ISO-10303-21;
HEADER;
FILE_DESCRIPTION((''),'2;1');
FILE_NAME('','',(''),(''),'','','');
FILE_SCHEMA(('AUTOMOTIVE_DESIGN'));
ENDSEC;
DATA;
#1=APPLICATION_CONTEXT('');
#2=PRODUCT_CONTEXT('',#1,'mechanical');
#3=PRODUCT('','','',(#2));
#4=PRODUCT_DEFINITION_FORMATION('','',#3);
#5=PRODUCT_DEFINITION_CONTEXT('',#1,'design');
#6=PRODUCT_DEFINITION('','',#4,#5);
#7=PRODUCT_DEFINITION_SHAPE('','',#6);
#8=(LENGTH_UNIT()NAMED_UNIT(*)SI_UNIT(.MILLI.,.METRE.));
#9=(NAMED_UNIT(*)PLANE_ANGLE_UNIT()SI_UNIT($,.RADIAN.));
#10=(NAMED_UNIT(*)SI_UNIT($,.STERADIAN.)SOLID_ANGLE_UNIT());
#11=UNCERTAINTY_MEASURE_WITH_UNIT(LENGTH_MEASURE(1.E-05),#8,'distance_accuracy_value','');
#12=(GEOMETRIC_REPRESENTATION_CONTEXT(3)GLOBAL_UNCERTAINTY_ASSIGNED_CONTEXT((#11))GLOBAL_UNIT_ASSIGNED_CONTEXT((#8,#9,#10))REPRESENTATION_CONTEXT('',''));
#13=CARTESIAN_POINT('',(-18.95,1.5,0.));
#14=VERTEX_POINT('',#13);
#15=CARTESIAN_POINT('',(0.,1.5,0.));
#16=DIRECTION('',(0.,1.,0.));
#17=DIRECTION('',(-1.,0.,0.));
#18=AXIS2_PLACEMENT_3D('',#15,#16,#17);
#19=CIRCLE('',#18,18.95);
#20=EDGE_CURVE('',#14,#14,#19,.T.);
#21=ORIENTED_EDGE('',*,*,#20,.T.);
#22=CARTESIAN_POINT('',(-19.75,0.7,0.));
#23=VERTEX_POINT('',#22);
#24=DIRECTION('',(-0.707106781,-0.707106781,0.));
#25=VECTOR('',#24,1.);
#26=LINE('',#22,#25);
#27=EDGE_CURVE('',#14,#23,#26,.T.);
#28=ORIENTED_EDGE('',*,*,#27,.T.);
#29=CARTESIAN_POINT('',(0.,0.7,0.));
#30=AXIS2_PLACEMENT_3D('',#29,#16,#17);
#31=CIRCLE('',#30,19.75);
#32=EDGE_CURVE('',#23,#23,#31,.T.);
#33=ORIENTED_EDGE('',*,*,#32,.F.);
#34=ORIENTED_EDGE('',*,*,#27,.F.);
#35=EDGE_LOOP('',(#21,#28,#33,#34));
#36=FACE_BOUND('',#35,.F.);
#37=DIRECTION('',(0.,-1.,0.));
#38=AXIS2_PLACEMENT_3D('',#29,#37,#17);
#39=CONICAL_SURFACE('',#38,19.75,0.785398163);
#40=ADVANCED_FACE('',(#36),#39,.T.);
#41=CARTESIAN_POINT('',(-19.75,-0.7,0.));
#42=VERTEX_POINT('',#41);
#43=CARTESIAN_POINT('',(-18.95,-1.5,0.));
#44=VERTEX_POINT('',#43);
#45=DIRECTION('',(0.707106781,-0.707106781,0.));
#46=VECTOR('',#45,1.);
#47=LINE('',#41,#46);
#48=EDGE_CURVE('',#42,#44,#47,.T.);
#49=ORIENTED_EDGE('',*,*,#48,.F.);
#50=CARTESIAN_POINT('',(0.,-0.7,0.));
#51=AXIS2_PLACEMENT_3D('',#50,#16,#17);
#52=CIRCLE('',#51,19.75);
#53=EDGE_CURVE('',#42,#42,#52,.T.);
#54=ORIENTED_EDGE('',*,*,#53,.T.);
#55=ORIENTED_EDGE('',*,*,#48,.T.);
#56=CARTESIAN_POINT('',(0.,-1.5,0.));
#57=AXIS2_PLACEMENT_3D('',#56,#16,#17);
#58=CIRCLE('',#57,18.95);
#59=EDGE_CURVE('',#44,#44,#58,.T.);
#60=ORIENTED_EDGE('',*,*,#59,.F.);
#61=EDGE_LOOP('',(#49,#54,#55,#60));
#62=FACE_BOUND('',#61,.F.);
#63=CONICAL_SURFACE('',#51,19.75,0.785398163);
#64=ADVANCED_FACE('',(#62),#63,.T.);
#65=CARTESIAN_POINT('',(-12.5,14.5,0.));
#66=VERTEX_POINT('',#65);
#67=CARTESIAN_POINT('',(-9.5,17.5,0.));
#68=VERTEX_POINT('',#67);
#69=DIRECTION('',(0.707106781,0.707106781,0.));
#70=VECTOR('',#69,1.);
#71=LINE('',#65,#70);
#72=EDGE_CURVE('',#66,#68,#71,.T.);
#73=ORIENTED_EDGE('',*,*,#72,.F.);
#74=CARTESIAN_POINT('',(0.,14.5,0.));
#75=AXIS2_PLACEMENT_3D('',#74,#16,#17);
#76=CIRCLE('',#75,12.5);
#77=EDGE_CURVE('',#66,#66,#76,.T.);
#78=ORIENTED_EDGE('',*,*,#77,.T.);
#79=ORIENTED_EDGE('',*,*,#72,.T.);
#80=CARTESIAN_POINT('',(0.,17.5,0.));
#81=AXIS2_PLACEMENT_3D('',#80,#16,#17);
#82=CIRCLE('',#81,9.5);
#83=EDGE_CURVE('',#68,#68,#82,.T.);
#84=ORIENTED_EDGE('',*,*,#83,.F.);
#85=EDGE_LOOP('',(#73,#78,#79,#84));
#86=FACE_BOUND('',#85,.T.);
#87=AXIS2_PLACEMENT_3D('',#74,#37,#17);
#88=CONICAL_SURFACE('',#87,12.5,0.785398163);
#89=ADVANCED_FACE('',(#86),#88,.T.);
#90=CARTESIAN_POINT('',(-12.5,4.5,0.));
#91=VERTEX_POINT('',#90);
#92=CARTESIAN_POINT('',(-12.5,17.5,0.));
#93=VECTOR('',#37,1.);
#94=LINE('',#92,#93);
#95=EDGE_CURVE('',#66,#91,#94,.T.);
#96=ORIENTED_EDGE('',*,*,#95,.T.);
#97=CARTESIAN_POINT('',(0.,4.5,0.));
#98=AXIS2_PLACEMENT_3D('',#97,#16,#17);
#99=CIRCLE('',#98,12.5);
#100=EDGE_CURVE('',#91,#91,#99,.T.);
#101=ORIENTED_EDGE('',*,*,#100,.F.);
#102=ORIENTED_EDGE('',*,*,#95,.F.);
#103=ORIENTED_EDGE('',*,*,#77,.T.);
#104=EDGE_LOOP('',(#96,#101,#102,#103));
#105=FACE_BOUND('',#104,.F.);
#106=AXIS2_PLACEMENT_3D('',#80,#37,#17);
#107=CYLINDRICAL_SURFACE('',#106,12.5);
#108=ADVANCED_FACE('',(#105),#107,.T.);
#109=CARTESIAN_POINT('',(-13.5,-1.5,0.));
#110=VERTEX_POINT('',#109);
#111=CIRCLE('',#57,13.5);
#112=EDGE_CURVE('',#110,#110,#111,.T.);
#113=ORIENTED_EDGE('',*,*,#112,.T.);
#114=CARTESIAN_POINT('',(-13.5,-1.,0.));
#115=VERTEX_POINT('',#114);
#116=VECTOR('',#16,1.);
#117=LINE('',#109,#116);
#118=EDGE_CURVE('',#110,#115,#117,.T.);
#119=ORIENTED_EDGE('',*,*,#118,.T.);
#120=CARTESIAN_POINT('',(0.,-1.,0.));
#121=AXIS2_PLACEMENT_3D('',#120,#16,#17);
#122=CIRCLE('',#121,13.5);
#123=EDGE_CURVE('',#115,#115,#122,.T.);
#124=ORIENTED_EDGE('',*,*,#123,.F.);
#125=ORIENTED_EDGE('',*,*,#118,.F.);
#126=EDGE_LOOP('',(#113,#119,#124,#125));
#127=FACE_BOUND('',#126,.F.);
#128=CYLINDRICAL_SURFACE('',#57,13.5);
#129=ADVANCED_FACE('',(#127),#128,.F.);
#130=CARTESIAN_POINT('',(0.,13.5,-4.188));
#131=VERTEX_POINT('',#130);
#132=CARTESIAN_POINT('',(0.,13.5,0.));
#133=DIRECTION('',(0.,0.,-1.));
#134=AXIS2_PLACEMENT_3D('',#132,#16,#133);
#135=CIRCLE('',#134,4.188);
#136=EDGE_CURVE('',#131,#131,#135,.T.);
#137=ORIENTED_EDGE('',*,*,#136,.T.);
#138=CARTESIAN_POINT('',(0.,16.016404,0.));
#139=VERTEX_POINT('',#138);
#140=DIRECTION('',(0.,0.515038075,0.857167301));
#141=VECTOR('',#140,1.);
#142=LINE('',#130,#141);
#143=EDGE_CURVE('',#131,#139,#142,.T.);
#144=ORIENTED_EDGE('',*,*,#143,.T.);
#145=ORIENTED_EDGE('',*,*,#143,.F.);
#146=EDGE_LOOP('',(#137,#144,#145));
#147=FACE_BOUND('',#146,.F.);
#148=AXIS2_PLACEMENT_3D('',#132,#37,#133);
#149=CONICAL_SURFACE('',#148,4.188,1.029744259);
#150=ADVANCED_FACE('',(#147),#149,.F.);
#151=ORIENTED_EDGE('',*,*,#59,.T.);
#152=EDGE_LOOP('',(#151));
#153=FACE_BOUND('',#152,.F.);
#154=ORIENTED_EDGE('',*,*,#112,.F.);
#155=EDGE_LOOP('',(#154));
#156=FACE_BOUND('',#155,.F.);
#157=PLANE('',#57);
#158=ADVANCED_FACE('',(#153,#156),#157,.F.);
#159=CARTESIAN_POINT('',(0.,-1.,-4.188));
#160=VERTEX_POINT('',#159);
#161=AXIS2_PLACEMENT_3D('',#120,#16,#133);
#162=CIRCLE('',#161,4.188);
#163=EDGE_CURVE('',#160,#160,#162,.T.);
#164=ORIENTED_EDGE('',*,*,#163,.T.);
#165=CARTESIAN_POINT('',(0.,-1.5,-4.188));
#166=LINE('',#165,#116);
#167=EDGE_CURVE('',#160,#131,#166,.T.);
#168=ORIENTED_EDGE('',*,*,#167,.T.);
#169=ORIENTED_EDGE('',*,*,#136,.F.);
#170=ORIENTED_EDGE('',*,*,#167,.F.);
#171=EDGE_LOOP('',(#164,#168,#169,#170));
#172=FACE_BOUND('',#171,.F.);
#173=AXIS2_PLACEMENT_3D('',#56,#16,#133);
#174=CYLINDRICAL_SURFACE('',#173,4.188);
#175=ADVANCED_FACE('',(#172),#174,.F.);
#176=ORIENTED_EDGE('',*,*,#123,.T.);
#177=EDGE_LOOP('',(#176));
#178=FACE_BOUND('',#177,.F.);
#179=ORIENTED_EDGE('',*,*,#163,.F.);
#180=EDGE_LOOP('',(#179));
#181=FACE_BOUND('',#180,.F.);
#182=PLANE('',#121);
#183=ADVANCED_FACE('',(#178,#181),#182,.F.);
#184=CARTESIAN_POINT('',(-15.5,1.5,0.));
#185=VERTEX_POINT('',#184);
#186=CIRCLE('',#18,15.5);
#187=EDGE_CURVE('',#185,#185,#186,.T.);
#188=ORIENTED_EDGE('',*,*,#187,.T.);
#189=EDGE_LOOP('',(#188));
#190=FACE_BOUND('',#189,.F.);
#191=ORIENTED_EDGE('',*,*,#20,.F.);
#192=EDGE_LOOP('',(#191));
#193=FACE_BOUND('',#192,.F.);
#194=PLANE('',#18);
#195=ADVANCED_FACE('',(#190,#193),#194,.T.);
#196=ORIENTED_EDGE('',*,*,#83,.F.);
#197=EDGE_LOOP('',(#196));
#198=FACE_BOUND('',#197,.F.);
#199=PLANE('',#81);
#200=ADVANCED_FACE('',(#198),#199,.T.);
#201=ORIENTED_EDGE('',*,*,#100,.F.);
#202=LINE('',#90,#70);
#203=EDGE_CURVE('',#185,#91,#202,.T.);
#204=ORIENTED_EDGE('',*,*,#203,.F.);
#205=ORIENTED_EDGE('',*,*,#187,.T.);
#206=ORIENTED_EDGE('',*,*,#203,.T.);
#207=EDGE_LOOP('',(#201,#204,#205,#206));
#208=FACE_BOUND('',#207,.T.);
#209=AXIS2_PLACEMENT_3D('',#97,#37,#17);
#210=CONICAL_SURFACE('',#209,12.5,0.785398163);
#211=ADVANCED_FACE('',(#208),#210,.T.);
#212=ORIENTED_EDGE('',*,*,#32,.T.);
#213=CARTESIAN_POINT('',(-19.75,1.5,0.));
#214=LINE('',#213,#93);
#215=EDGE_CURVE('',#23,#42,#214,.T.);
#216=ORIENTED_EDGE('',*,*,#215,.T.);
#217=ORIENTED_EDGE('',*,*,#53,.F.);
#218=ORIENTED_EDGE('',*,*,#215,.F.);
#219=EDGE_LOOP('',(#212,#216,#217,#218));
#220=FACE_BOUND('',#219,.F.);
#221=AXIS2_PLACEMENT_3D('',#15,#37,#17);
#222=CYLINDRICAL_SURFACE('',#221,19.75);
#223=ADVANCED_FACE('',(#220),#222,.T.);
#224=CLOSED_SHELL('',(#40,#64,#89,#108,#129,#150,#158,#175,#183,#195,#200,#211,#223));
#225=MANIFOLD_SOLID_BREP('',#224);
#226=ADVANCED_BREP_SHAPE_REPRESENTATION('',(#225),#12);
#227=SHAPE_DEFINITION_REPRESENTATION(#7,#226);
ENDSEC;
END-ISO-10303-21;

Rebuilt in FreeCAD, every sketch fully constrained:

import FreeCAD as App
import Part
import Sketcher
Q = App.Units.Quantity


def edges_at(feature, points):
    """Names of the edges that pass closest to the given points."""
    edges = feature.Shape.Edges
    near = lambda p: min(range(len(edges)), key=lambda i: edges[i].distToShape(Part.Vertex(*p))[0])
    return sorted({f"Edge{near(p) + 1}" for p in points})

doc = App.newDocument("Part")
body = doc.addObject("PartDesign::Body", "Body")

# Sketch on XY plane
sketch1 = body.newObject("Sketcher::SketchObject", "Sketch")
sketch1.AttachmentSupport = (doc.getObject("XY_Plane"), [""])
sketch1.MapMode = "FlatFace"
sketch1.addGeometry(Part.LineSegment(App.Vector(-13.5, -1, 0), App.Vector(0, -1, 0)), False)
sketch1.addGeometry(Part.LineSegment(App.Vector(0, -1, 0), App.Vector(0, 17.5, 0)), False)
sketch1.addGeometry(Part.LineSegment(App.Vector(0, 17.5, 0), App.Vector(-12.5, 17.5, 0)), False)
sketch1.addGeometry(Part.LineSegment(App.Vector(-12.5, 17.5, 0), App.Vector(-12.5, 1.5, 0)), False)
sketch1.addGeometry(Part.LineSegment(App.Vector(-12.5, 1.5, 0), App.Vector(-19.75, 1.5, 0)), False)
sketch1.addGeometry(Part.LineSegment(App.Vector(-19.75, 1.5, 0), App.Vector(-19.75, -1.5, 0)), False)
sketch1.addGeometry(Part.LineSegment(App.Vector(-19.75, -1.5, 0), App.Vector(-13.5, -1.5, 0)), False)
sketch1.addGeometry(Part.LineSegment(App.Vector(-13.5, -1.5, 0), App.Vector(-13.5, -1, 0)), False)
sketch1.addConstraint(Sketcher.Constraint("Coincident", 0, 2, 1, 1))
sketch1.addConstraint(Sketcher.Constraint("Coincident", 1, 2, 2, 1))
sketch1.addConstraint(Sketcher.Constraint("Coincident", 2, 2, 3, 1))
sketch1.addConstraint(Sketcher.Constraint("Coincident", 3, 2, 4, 1))
sketch1.addConstraint(Sketcher.Constraint("Coincident", 4, 2, 5, 1))
sketch1.addConstraint(Sketcher.Constraint("Coincident", 5, 2, 6, 1))
sketch1.addConstraint(Sketcher.Constraint("Coincident", 6, 2, 7, 1))
sketch1.addConstraint(Sketcher.Constraint("Coincident", 7, 2, 0, 1))
sketch1.addConstraint(Sketcher.Constraint("Horizontal", 0))
sketch1.addConstraint(Sketcher.Constraint("Vertical", 1))
sketch1.addConstraint(Sketcher.Constraint("Horizontal", 2))
sketch1.addConstraint(Sketcher.Constraint("Vertical", 3))
sketch1.addConstraint(Sketcher.Constraint("Horizontal", 4))
sketch1.addConstraint(Sketcher.Constraint("Vertical", 5))
sketch1.addConstraint(Sketcher.Constraint("Horizontal", 6))
sketch1.addConstraint(Sketcher.Constraint("Vertical", 7))
sketch1.addConstraint(Sketcher.Constraint("PointOnObject", 0, 2, -2))
sketch1.addConstraint(Sketcher.Constraint("DistanceY", 3, 2, 3, 1, Q("16 mm")))
sketch1.addConstraint(Sketcher.Constraint("DistanceY", 5, 2, 5, 1, Q("3 mm")))
sketch1.addConstraint(Sketcher.Constraint("DistanceY", 7, 1, 7, 2, Q("0.5 mm")))
sketch1.addConstraint(Sketcher.Constraint("DistanceX", 0, 1, 0, 2, Q("13.5 mm")))
sketch1.addConstraint(Sketcher.Constraint("DistanceX", 2, 2, 2, 1, Q("12.5 mm")))
sketch1.addConstraint(Sketcher.Constraint("DistanceY", 0, 2, -1, 1, Q("1 mm")))
sketch1.addConstraint(Sketcher.Constraint("DistanceX", 4, 2, 4, 1, Q("7.25 mm")))
revolution = body.newObject("PartDesign::Revolution", "Revolution")
revolution.Profile = sketch1
revolution.ReferenceAxis = (sketch1, ["V_Axis"])
revolution.Angle = 360

# Sketch on XZ plane
sketch2 = body.newObject("Sketcher::SketchObject", "Sketch001")
sketch2.AttachmentSupport = (doc.getObject("XZ_Plane"), [""])
sketch2.MapMode = "FlatFace"
sketch2.AttachmentOffset = App.Placement(App.Vector(0, 0, 1.5), App.Rotation())
sketch2.addGeometry(Part.Circle(App.Vector(0, 0, 0), App.Vector(0, 0, 1), 4.188), False)
sketch2.addConstraint(Sketcher.Constraint("Coincident", 0, 3, -1, 1))
sketch2.addConstraint(Sketcher.Constraint("Diameter", 0, Q("8.376 mm")))
doc.recompute()
hole = body.newObject("PartDesign::Hole", "Hole")
hole.Profile = sketch2
hole.ThreadType = "None"
hole.Diameter = 8.376
hole.DepthType = "Dimension"
hole.Depth = 15
hole.DrillPoint = "Angled"
hole.DrillPointAngle = 118
doc.recompute()

chamfer = body.newObject("PartDesign::Chamfer", "Chamfer")
chamfer.Base = (hole, edges_at(hole, [(12.5, 1.5, 0)]))
chamfer.Size = 3
doc.recompute()

chamfer2 = body.newObject("PartDesign::Chamfer", "Chamfer001")
chamfer2.Base = (chamfer, edges_at(chamfer, [(19.75, 1.5, 0), (19.75, -1.5, 0)]))
chamfer2.Size = 0.8
doc.recompute()

chamfer3 = body.newObject("PartDesign::Chamfer", "Chamfer002")
chamfer3.Base = (chamfer2, edges_at(chamfer2, [(12.5, 17.5, 0)]))
chamfer3.Size = 3

doc.recompute()
